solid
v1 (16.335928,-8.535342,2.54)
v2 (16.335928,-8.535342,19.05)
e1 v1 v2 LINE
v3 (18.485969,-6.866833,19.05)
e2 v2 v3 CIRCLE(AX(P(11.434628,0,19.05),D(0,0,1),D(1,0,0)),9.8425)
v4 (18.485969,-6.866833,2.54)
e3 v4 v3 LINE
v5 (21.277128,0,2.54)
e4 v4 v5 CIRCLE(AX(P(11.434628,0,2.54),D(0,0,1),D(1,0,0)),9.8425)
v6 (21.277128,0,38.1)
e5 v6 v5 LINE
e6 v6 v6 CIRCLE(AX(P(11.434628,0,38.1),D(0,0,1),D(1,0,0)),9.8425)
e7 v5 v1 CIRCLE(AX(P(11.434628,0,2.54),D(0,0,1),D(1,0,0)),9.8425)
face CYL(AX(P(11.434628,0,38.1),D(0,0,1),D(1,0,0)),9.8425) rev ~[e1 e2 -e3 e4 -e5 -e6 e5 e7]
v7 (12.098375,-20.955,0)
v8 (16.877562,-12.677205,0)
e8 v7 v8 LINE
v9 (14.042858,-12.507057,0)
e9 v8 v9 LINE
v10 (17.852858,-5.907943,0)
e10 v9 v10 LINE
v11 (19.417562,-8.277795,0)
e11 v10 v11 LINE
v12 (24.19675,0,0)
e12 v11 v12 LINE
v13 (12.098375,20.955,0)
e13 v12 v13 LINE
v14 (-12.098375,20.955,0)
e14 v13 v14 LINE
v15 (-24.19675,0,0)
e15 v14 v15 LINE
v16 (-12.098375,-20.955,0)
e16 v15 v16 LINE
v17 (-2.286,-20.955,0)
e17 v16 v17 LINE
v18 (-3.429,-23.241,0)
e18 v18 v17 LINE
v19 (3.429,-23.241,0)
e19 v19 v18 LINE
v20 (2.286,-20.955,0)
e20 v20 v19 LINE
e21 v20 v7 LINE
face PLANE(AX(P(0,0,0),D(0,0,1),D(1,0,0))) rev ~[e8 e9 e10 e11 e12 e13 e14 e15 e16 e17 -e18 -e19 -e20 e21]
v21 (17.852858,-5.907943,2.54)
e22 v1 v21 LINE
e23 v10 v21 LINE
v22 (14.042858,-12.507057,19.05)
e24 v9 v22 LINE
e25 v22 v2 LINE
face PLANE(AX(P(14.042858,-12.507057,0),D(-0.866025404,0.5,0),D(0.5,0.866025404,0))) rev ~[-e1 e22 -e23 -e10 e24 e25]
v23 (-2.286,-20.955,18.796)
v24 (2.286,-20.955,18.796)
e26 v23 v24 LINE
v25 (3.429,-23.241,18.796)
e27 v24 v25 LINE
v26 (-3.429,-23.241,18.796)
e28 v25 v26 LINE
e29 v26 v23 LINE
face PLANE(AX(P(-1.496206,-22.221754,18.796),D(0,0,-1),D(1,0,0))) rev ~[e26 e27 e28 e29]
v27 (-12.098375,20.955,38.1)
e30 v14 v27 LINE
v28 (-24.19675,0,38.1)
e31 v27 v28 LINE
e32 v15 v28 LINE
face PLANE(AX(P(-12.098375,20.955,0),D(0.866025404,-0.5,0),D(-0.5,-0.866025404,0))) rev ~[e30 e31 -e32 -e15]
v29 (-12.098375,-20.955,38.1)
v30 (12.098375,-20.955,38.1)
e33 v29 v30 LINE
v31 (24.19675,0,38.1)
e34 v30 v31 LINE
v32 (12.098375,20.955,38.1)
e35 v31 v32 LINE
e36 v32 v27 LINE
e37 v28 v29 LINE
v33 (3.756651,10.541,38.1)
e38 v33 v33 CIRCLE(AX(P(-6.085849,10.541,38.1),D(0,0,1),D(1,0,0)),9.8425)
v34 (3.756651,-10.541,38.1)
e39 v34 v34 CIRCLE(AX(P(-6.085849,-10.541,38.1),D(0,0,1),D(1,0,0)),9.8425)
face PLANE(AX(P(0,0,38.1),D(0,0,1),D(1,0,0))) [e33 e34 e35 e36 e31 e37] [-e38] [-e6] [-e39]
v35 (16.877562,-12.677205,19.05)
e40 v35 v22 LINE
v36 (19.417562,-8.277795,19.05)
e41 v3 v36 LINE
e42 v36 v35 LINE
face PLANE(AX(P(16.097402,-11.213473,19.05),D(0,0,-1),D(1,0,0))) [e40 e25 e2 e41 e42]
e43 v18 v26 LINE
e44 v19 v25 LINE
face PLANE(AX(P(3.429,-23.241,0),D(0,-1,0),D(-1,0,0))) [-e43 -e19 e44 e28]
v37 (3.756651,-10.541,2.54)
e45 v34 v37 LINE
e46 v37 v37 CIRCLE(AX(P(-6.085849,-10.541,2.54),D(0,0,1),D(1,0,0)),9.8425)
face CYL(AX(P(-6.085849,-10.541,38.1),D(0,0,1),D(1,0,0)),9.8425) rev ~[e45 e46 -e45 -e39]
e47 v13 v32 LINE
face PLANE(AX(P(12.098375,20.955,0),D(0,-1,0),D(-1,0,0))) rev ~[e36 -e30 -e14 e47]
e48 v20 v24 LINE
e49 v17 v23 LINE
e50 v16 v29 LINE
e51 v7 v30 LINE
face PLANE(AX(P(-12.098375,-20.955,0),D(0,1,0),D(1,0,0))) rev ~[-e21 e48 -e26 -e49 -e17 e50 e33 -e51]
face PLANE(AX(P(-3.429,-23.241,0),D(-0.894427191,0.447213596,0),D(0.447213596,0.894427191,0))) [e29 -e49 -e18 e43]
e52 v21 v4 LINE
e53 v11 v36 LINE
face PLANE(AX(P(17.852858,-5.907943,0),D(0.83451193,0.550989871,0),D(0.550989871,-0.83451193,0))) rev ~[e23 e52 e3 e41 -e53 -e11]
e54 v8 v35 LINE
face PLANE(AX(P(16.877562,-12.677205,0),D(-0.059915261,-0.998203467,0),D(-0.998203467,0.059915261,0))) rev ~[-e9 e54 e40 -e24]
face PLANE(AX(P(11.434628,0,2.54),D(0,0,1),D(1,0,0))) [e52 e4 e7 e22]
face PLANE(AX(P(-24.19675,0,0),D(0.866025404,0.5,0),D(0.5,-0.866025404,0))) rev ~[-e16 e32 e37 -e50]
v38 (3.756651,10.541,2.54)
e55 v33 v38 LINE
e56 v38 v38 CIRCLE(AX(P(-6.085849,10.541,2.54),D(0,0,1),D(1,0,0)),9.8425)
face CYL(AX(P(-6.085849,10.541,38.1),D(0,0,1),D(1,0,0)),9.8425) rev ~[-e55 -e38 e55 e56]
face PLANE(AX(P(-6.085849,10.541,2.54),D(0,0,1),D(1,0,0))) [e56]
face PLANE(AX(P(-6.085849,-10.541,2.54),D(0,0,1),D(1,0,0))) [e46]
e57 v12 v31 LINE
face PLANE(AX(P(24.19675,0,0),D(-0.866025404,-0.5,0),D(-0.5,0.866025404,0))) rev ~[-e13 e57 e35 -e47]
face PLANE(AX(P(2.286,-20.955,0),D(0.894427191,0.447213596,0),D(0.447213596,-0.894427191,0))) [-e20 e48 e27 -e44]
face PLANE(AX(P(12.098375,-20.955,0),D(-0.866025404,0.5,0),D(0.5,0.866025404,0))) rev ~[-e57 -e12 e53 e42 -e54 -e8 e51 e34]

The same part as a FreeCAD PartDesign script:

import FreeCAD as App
import Part
import Sketcher

V = App.Vector
Q = App.Units.Quantity

doc = App.newDocument("Part")
params = doc.addObject("Spreadsheet::Sheet", "Params")
for row, (alias, value) in enumerate([
    ("pad1_length", "1.5 in"),
    ("sketch2_width", "0.18 in"),
    ("sketch2_width2", "0.27 in"),
    ("pad2_length", "0.74 in"),
    ("sketch3_length", "0.3 in"),
    ("sketch3_length2", "0.2 in"),
    ("pocket1_length", "0.75 in"),
    ("sketch4_diameter", "0.775 in"),
    ("pocket2_length", "1.4 in"),
], start=1):
    params.set(f"A{row}", alias)
    params.set(f"B{row}", "=" + value)
    params.setAlias(f"B{row}", alias)

body = doc.addObject("PartDesign::Body", "Body")

sketch1 = body.newObject("Sketcher::SketchObject", "Sketch")
sketch1.AttachmentSupport = (doc.getObject("XY_Plane"), [""])
sketch1.MapMode = "FlatFace"
sketch1.addGeometry(Part.LineSegment(V(-12, -21, 0), V(12, -21, 0)), False)
sketch1.addGeometry(Part.LineSegment(V(12, -21, 0), V(24, 0, 0)), False)
sketch1.addGeometry(Part.LineSegment(V(24, 0, 0), V(12, 21, 0)), False)
sketch1.addGeometry(Part.LineSegment(V(12, 21, 0), V(-12, 21, 0)), False)
sketch1.addGeometry(Part.LineSegment(V(-12, 21, 0), V(-24, 0, 0)), False)
sketch1.addGeometry(Part.LineSegment(V(-24, 0, 0), V(-12, -21, 0)), False)
sketch1.addConstraint(Sketcher.Constraint("Coincident", 0, 2, 1, 1))
sketch1.addConstraint(Sketcher.Constraint("Coincident", 1, 2, 2, 1))
sketch1.addConstraint(Sketcher.Constraint("Coincident", 2, 2, 3, 1))
sketch1.addConstraint(Sketcher.Constraint("Coincident", 3, 2, 4, 1))
sketch1.addConstraint(Sketcher.Constraint("Coincident", 4, 2, 5, 1))
sketch1.addConstraint(Sketcher.Constraint("Coincident", 5, 2, 0, 1))
sketch1.addConstraint(Sketcher.Constraint("Horizontal", 0))
sketch1.addConstraint(Sketcher.Constraint("Horizontal", 3))
sketch1.addConstraint(Sketcher.Constraint("Symmetric", 0, 2, 3, 2, -1, 1))
sketch1.addConstraint(Sketcher.Constraint("Symmetric", 1, 2, 4, 2, -1, 1))
sketch1.addConstraint(Sketcher.Constraint("PointOnObject", 1, 2, -1))
sketch1.addConstraint(Sketcher.Constraint("Parallel", 2, 5))
sketch1.addConstraint(Sketcher.Constraint("Vertical", 0, 2, 2, 2))
sketch1.addConstraint(Sketcher.Constraint("Angle", 1, Q("60 deg")))
sketch1.addConstraint(Sketcher.Constraint("DistanceY", 0, 2, 2, 2, Q("1.65 in")))
sketch1.addConstraint(Sketcher.Constraint("DistanceX", 0, 1, 0, 2, Q("24.19675 mm")))
pad1 = body.newObject("PartDesign::Pad", "Pad")
pad1.Profile = sketch1
pad1.setExpression("Length", "Params.pad1_length")

sketch2 = body.newObject("Sketcher::SketchObject", "Sketch001")
sketch2.AttachmentSupport = (doc.getObject("XY_Plane"), [""])
sketch2.MapMode = "FlatFace"
sketch2.addGeometry(Part.LineSegment(V(-2.3, -21, 0), V(2.3, -21, 0)), False)
sketch2.addGeometry(Part.LineSegment(V(2.3, -21, 0), V(3.4, -23.2, 0)), False)
sketch2.addGeometry(Part.LineSegment(V(3.4, -23.2, 0), V(-3.4, -23.2, 0)), False)
sketch2.addGeometry(Part.LineSegment(V(-3.4, -23.2, 0), V(-2.3, -21, 0)), False)
sketch2.addConstraint(Sketcher.Constraint("Coincident", 0, 2, 1, 1))
sketch2.addConstraint(Sketcher.Constraint("Coincident", 1, 2, 2, 1))
sketch2.addConstraint(Sketcher.Constraint("Coincident", 2, 2, 3, 1))
sketch2.addConstraint(Sketcher.Constraint("Coincident", 3, 2, 0, 1))
sketch2.addConstraint(Sketcher.Constraint("Horizontal", 0))
sketch2.addConstraint(Sketcher.Constraint("Horizontal", 2))
sketch2.addConstraint(Sketcher.Constraint("Equal", 1, 3))
sketch2.addConstraint(Sketcher.Constraint("DistanceX", 0, 1, 0, 2, Q("0.18 in")))
sketch2.addConstraint(Sketcher.Constraint("DistanceX", 2, 2, 2, 1, Q("0.27 in")))
sketch2.addConstraint(Sketcher.Constraint("DistanceX", -1, 1, 0, 2, Q("0.09 in")))
sketch2.addConstraint(Sketcher.Constraint("DistanceY", 1, 2, 0, 2, Q("0.09 in")))
sketch2.addConstraint(Sketcher.Constraint("DistanceY", 0, 2, -1, 1, Q("0.825 in")))
sketch2.setExpression("Constraints[7]", "Params.sketch2_width")
sketch2.setExpression("Constraints[8]", "Params.sketch2_width2")
pad2 = body.newObject("PartDesign::Pad", "Pad001")
pad2.Profile = sketch2
pad2.setExpression("Length", "Params.pad2_length")

sketch3 = body.newObject("Sketcher::SketchObject", "Sketch002")
sketch3.AttachmentSupport = (doc.getObject("XY_Plane"), [""])
sketch3.MapMode = "FlatFace"
sketch3.addGeometry(Part.LineSegment(V(16.9, -12.7, 0), V(14, -12.5, 0)), False)
sketch3.addGeometry(Part.LineSegment(V(14, -12.5, 0), V(17.9, -5.9, 0)), False)
sketch3.addGeometry(Part.LineSegment(V(17.9, -5.9, 0), V(19.4, -8.3, 0)), False)
sketch3.addGeometry(Part.LineSegment(V(19.4, -8.3, 0), V(16.9, -12.7, 0)), False)
sketch3.addConstraint(Sketcher.Constraint("Coincident", 0, 2, 1, 1))
sketch3.addConstraint(Sketcher.Constraint("Coincident", 1, 2, 2, 1))
sketch3.addConstraint(Sketcher.Constraint("Coincident", 2, 2, 3, 1))
sketch3.addConstraint(Sketcher.Constraint("Coincident", 3, 2, 0, 1))
sketch3.addConstraint(Sketcher.Constraint("Parallel", 1, 3))
sketch3.addConstraint(Sketcher.Constraint("Equal", 0, 2))
sketch3.addConstraint(Sketcher.Constraint("Angle", 1, Q("60 deg")))
sketch3.addConstraint(Sketcher.Constraint("Distance", 1, Q("0.3 in")))
sketch3.addConstraint(Sketcher.Constraint("Distance", 3, Q("0.2 in")))
sketch3.addConstraint(Sketcher.Constraint("DistanceY", 0, 2, 2, 2, Q("4.229261 mm")))
sketch3.addConstraint(Sketcher.Constraint("DistanceX", -1, 1, 0, 2, Q("14.042858 mm")))
sketch3.addConstraint(Sketcher.Constraint("DistanceY", 0, 2, -1, 1, Q("12.507057 mm")))
sketch3.setExpression("Constraints[7]", "Params.sketch3_length")
sketch3.setExpression("Constraints[8]", "Params.sketch3_length2")
pocket1 = body.newObject("PartDesign::Pocket", "Pocket")
pocket1.Profile = sketch3
pocket1.setExpression("Length", "Params.pocket1_length")
pocket1.Reversed = True

sketch4 = body.newObject("Sketcher::SketchObject", "Sketch003")
sketch4.AttachmentSupport = (doc.getObject("XY_Plane"), [""])
sketch4.MapMode = "FlatFace"
sketch4.AttachmentOffset = App.Placement(V(0, 0, 1.5 * 25.4), App.Rotation())
sketch4.addGeometry(Part.Circle(V(-6, -11, 0), V(0, 0, 1), 10), False)
sketch4.addGeometry(Part.Circle(V(-6, 11, 0), V(0, 0, 1), 10), False)
sketch4.addGeometry(Part.Circle(V(11, 0, 0), V(0, 0, 1), 10), False)
sketch4.addConstraint(Sketcher.Constraint("Equal", 0, 1))
sketch4.addConstraint(Sketcher.Constraint("Equal", 1, 2))
sketch4.addConstraint(Sketcher.Constraint("Symmetric", 0, 3, 1, 3, -1))
sketch4.addConstraint(Sketcher.Constraint("PointOnObject", 2, 3, -1))
sketch4.addConstraint(Sketcher.Constraint("Diameter", 0, Q("0.775 in")))
sketch4.addConstraint(Sketcher.Constraint("DistanceY", 0, 3, 1, 3, Q("0.83 in")))
sketch4.addConstraint(Sketcher.Constraint("DistanceX", 0, 3, -1, 1, Q("6.085849 mm")))
sketch4.addConstraint(Sketcher.Constraint("DistanceX", -1, 1, 2, 3, Q("11.434628 mm")))
sketch4.setExpression("Constraints[4]", "Params.sketch4_diameter")
pocket2 = body.newObject("PartDesign::Pocket", "Pocket001")
pocket2.Profile = sketch4
pocket2.setExpression("Length", "Params.pocket2_length")

doc.recompute()
